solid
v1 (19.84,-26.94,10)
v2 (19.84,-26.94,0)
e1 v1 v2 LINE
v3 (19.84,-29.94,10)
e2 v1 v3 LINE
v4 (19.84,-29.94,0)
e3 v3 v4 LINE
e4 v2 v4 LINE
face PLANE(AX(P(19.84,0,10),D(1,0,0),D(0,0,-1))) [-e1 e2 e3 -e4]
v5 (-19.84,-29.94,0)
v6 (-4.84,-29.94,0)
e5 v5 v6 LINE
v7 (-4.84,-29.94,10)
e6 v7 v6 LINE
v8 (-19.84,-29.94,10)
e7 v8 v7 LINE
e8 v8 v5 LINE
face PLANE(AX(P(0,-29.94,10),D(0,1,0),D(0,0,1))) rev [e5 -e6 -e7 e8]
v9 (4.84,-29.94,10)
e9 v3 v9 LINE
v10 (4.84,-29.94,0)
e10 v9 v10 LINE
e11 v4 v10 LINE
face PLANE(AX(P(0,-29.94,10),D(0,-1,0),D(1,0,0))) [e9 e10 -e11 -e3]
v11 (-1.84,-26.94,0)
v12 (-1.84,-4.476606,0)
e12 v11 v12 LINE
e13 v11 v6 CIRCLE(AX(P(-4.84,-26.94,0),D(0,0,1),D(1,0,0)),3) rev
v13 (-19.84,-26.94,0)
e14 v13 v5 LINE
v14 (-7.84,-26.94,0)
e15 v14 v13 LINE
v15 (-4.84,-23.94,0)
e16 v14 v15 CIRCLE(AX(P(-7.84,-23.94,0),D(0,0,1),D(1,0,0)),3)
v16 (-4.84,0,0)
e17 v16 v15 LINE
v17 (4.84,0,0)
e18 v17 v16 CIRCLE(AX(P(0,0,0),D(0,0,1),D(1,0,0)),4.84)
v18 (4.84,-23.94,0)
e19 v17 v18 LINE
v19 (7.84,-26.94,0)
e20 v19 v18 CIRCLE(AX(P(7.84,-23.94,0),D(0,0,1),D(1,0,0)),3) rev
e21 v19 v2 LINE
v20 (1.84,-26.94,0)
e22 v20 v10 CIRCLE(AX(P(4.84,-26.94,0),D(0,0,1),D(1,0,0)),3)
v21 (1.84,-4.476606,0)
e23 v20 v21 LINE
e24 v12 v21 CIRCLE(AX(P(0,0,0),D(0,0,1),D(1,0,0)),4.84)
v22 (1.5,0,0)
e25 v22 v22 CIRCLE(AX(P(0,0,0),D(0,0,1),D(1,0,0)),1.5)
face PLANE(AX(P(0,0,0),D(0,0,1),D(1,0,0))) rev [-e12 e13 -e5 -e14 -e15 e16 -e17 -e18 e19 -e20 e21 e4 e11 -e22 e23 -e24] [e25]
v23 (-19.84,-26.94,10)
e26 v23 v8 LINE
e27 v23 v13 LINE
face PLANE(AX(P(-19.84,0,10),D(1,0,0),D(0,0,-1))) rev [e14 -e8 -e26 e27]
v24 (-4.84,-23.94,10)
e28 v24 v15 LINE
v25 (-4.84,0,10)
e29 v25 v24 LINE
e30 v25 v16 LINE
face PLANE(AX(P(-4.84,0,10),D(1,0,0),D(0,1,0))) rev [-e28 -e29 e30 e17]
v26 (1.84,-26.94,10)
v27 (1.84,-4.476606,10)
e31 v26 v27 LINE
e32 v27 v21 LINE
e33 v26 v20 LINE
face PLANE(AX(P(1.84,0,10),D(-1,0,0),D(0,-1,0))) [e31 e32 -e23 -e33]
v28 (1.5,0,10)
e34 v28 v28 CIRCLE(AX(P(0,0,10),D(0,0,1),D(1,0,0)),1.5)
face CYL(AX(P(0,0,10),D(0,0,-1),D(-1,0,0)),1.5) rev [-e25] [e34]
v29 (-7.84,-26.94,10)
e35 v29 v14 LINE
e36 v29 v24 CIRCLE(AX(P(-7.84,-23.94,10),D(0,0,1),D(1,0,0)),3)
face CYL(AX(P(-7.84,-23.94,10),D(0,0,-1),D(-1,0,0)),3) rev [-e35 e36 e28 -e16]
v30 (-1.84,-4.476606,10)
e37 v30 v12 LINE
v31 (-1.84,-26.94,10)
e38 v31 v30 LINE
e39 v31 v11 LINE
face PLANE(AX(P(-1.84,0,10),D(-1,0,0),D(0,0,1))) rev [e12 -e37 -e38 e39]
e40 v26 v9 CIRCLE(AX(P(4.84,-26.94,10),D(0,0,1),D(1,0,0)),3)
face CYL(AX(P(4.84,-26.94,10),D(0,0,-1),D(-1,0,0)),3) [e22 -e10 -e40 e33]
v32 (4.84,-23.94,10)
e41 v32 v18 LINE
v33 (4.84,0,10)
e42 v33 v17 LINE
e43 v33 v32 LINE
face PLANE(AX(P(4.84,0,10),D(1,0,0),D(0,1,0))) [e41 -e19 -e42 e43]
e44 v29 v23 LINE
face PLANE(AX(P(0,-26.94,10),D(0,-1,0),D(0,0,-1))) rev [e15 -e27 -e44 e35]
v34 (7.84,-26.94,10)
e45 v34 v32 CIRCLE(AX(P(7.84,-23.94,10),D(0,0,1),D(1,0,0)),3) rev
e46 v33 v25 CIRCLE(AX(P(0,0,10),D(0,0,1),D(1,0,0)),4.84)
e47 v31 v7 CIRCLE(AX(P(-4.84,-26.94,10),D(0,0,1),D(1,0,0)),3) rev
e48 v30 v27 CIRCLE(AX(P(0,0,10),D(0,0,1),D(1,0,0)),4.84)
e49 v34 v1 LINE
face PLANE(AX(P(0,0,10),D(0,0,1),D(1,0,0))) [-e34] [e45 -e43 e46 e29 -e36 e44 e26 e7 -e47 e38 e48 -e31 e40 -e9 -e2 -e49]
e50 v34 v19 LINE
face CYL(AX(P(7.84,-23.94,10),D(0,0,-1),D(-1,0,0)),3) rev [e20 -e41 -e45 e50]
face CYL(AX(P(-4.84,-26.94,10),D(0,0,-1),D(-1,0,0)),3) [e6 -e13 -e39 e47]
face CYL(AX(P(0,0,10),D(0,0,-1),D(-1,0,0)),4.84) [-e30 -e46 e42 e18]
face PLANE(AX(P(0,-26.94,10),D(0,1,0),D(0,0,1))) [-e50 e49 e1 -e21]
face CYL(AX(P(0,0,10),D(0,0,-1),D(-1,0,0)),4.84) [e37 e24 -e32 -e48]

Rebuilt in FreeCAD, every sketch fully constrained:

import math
import FreeCAD as App
import Part
import Sketcher
from FreeCAD import Vector
Q = App.Units.Quantity

doc = App.newDocument("Part")
body = doc.addObject("PartDesign::Body", "Body")

sketch1 = body.newObject("Sketcher::SketchObject", "Sketch")
sketch1.AttachmentSupport = (doc.getObject("XY_Plane"), [""])
sketch1.MapMode = "FlatFace"
sketch1.addGeometry([
    Part.LineSegment(Vector(-1.8, -26.9, 0), Vector(-1.8, -4.5, 0)),
    Part.ArcOfCircle(Part.Circle(Vector(0, 0, 0), Vector(0, 0, 1), 4.8), math.radians(-112), math.radians(-68)),
    Part.LineSegment(Vector(1.8, -4.5, 0), Vector(1.8, -26.9, 0)),
    Part.ArcOfCircle(Part.Circle(Vector(4.8, -26.9, 0), Vector(0, 0, 1), 3), math.radians(180), math.radians(270)),
    Part.LineSegment(Vector(4.8, -29.9, 0), Vector(19.8, -29.9, 0)),
    Part.LineSegment(Vector(19.8, -29.9, 0), Vector(19.8, -26.9, 0)),
    Part.LineSegment(Vector(19.8, -26.9, 0), Vector(7.8, -26.9, 0)),
    Part.ArcOfCircle(Part.Circle(Vector(7.8, -23.9, 0), Vector(0, 0, 1), 3), math.radians(180), math.radians(270)),
    Part.LineSegment(Vector(4.8, -23.9, 0), Vector(4.8, 0, 0)),
    Part.ArcOfCircle(Part.Circle(Vector(0, 0, 0), Vector(0, 0, 1), 4.8), math.radians(0), math.radians(180)),
    Part.LineSegment(Vector(-4.8, 0, 0), Vector(-4.8, -23.9, 0)),
    Part.ArcOfCircle(Part.Circle(Vector(-7.8, -23.9, 0), Vector(0, 0, 1), 3), math.radians(-90), math.radians(0)),
    Part.LineSegment(Vector(-7.8, -26.9, 0), Vector(-19.8, -26.9, 0)),
    Part.LineSegment(Vector(-19.8, -26.9, 0), Vector(-19.8, -29.9, 0)),
    Part.LineSegment(Vector(-19.8, -29.9, 0), Vector(-4.8, -29.9, 0)),
    Part.ArcOfCircle(Part.Circle(Vector(-4.8, -26.9, 0), Vector(0, 0, 1), 3), math.radians(-90), math.radians(0)),
    Part.Circle(Vector(0, 0, 0), Vector(0, 0, 1), 1.5),
], False)
sketch1.addConstraint([
    Sketcher.Constraint("Coincident", 0, 2, 1, 1),
    Sketcher.Constraint("Coincident", 1, 2, 2, 1),
    Sketcher.Constraint("Tangent", 2, 2, 3, 1),
    Sketcher.Constraint("Tangent", 3, 2, 4, 1),
    Sketcher.Constraint("Coincident", 4, 2, 5, 1),
    Sketcher.Constraint("Coincident", 5, 2, 6, 1),
    Sketcher.Constraint("Tangent", 6, 2, 7, 2),
    Sketcher.Constraint("Tangent", 7, 1, 8, 1),
    Sketcher.Constraint("Tangent", 8, 2, 9, 1),
    Sketcher.Constraint("Tangent", 9, 2, 10, 1),
    Sketcher.Constraint("Tangent", 10, 2, 11, 2),
    Sketcher.Constraint("Tangent", 11, 1, 12, 1),
    Sketcher.Constraint("Coincident", 12, 2, 13, 1),
    Sketcher.Constraint("Coincident", 13, 2, 14, 1),
    Sketcher.Constraint("Tangent", 14, 2, 15, 1),
    Sketcher.Constraint("Tangent", 15, 2, 0, 1),
    Sketcher.Constraint("Vertical", 0),
    Sketcher.Constraint("Vertical", 2),
    Sketcher.Constraint("Horizontal", 4),
    Sketcher.Constraint("Vertical", 5),
    Sketcher.Constraint("Horizontal", 6),
    Sketcher.Constraint("Vertical", 8),
    Sketcher.Constraint("Vertical", 10),
    Sketcher.Constraint("Horizontal", 12),
    Sketcher.Constraint("Vertical", 13),
    Sketcher.Constraint("Horizontal", 14),
    Sketcher.Constraint("Coincident", 1, 3, -1, 1),
    Sketcher.Constraint("Coincident", 9, 3, -1, 1),
    Sketcher.Constraint("Coincident", 16, 3, -1, 1),
    Sketcher.Constraint("Equal", 3, 7),
    Sketcher.Constraint("Equal", 1, 9),
    Sketcher.Constraint("Equal", 7, 11),
    Sketcher.Constraint("Equal", 11, 15),
    Sketcher.Constraint("Symmetric", 3, 3, 15, 3, -2),
    Sketcher.Constraint("Symmetric", 5, 2, 12, 2, -2),
    Sketcher.Constraint("Horizontal", 2, 2, 5, 2),
    Sketcher.Constraint("Vertical", 3, 2, 7, 1),
    Sketcher.Constraint("Diameter", 16, Q("3 mm")),
    Sketcher.Constraint("Radius", 3, Q("3 mm")),
    Sketcher.Constraint("DistanceX", 4, 1, 4, 2, Q("15 mm")),
    Sketcher.Constraint("Radius", 1, Q("4.84 mm")),
    Sketcher.Constraint("DistanceY", 8, 1, 8, 2, Q("23.94 mm")),
])
pad1 = body.newObject("PartDesign::Pad", "Pad")
pad1.Profile = sketch1
pad1.Length = 10

doc.recompute()
